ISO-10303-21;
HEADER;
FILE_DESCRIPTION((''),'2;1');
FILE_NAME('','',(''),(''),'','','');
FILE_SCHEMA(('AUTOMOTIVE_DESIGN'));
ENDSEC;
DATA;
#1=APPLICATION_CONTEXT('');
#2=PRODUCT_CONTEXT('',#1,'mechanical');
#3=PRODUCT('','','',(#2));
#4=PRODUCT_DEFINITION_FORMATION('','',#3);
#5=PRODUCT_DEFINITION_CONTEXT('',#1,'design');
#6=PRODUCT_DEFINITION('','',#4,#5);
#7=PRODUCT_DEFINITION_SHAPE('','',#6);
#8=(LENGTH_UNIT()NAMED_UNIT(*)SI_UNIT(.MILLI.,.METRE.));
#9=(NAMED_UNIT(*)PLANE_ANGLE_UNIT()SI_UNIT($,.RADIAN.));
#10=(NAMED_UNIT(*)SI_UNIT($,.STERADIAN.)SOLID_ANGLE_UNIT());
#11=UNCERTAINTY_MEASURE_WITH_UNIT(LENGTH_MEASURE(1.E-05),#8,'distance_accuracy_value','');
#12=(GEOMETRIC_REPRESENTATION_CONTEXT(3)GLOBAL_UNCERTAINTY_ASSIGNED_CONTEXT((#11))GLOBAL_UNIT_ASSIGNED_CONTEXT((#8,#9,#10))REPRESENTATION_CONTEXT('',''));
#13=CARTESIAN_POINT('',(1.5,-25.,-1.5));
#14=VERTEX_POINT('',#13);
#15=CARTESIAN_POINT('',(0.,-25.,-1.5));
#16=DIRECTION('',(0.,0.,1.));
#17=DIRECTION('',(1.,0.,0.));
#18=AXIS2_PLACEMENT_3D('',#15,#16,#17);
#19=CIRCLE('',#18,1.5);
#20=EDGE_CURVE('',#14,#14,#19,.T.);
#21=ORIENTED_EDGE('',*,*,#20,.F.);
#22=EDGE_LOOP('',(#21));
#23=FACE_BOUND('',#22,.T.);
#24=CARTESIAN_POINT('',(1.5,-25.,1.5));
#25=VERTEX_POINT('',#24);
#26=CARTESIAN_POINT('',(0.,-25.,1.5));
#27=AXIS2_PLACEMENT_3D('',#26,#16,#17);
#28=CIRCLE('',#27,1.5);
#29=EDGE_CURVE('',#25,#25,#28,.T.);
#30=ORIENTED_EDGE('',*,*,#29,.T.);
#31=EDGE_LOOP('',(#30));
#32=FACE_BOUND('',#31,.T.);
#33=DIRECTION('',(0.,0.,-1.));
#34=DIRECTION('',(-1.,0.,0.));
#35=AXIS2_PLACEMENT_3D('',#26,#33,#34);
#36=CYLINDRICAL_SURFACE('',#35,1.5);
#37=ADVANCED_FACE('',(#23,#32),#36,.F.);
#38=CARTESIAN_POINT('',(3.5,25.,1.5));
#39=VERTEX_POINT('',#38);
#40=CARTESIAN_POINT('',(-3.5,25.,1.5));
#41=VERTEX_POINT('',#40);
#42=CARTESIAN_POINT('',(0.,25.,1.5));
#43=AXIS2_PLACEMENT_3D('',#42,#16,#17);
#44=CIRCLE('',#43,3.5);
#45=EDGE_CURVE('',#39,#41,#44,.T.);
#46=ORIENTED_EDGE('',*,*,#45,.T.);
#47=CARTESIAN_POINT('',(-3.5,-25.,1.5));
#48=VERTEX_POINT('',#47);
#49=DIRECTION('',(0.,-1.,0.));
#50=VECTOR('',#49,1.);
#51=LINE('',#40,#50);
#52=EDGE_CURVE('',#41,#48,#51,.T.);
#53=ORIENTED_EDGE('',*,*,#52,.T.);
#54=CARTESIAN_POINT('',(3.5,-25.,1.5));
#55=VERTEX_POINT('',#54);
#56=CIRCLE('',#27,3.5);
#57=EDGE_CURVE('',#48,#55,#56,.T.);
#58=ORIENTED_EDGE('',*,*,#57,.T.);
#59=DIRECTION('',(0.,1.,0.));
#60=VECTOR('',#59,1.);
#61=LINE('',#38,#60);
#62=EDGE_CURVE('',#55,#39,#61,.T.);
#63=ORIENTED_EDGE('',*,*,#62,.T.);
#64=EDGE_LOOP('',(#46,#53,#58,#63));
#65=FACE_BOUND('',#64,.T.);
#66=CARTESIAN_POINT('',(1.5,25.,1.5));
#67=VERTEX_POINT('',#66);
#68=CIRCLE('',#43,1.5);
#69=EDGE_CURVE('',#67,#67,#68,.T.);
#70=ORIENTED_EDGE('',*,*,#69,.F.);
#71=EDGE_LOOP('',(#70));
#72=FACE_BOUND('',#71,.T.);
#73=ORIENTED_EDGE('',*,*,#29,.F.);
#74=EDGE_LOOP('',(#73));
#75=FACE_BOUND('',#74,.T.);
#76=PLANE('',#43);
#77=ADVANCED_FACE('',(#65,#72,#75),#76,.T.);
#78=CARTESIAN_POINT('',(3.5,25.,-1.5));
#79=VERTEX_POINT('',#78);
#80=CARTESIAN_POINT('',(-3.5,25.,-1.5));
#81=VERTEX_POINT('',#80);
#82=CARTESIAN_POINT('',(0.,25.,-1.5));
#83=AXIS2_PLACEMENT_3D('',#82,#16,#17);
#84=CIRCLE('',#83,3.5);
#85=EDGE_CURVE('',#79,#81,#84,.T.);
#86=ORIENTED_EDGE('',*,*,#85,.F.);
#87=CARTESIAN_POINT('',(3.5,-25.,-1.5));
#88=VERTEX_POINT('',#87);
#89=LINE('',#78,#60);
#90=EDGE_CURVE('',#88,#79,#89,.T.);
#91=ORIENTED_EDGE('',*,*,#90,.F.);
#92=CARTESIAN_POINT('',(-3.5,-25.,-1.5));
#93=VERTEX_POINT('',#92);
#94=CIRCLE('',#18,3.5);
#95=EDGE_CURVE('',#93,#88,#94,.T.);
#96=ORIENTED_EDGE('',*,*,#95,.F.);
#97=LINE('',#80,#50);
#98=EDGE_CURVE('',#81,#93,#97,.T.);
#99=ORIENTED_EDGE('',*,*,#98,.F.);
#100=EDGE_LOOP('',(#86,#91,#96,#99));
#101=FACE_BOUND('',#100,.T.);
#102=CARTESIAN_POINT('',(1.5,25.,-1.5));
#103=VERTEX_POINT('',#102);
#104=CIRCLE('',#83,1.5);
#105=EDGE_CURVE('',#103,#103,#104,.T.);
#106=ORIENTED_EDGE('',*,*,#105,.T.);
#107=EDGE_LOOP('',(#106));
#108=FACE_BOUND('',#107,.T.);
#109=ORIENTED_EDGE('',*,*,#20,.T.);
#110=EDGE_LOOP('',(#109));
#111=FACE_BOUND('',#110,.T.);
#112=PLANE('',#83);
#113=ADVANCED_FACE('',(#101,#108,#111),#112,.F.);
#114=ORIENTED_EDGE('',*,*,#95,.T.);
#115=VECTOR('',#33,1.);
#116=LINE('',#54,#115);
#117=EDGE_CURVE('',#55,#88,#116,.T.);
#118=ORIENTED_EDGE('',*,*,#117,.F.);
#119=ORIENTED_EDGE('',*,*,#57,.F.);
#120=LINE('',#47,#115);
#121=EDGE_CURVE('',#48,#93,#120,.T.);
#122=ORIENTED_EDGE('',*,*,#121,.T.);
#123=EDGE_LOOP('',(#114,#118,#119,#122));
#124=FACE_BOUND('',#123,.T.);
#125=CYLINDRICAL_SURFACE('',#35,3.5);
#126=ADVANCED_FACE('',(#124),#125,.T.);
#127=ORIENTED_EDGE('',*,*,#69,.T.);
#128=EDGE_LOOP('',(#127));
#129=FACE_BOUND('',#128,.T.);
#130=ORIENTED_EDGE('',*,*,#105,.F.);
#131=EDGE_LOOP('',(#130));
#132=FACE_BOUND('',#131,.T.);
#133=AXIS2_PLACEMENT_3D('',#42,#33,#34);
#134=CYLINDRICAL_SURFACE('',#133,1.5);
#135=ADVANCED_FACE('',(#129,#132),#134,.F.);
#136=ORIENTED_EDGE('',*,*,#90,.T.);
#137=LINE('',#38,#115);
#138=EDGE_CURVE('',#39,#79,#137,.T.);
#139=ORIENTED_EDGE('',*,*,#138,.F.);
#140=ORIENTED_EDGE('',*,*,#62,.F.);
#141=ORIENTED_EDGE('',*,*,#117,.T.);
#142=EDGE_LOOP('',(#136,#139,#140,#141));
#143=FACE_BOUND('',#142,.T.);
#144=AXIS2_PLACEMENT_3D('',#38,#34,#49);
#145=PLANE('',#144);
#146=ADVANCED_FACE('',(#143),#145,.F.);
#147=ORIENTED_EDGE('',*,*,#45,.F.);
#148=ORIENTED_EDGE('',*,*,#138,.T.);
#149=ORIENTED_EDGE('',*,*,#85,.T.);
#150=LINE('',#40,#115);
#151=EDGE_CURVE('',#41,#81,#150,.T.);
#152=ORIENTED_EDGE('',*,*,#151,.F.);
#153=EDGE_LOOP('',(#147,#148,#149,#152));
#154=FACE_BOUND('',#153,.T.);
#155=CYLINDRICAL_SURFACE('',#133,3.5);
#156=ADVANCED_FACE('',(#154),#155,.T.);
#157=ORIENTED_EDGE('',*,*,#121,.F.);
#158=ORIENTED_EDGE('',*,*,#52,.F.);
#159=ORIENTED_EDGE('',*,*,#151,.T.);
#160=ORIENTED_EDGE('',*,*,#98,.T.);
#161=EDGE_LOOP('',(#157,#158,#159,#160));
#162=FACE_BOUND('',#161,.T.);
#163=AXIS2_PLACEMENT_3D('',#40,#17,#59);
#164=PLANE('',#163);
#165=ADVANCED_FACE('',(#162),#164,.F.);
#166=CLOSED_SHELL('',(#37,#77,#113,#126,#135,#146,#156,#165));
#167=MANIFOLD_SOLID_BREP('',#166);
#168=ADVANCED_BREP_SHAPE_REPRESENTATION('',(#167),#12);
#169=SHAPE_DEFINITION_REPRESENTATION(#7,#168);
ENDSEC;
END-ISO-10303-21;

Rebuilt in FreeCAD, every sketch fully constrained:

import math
import FreeCAD as App
import Part
import Sketcher
Q = App.Units.Quantity

doc = App.newDocument("Part")
body = doc.addObject("PartDesign::Body", "Body")

sketch1 = body.newObject("Sketcher::SketchObject", "Sketch")
sketch1.AttachmentSupport = (doc.getObject("XY_Plane"), [""])
sketch1.MapMode = "FlatFace"
sketch1.addGeometry([
    Part.LineSegment(App.Vector(3.5, -25, 0), App.Vector(3.5, 25, 0)),
    Part.ArcOfCircle(Part.Circle(App.Vector(0, 25, 0), App.Vector(0, 0, 1), 3.5), math.radians(0), math.radians(180)),
    Part.LineSegment(App.Vector(-3.5, 25, 0), App.Vector(-3.5, -25, 0)),
    Part.ArcOfCircle(Part.Circle(App.Vector(0, -25, 0), App.Vector(0, 0, 1), 3.5), math.radians(180), math.radians(360)),
    Part.Circle(App.Vector(0, -25, 0), App.Vector(0, 0, 1), 1.5),
    Part.Circle(App.Vector(0, 25, 0), App.Vector(0, 0, 1), 1.5),
], False)
sketch1.addConstraint([
    Sketcher.Constraint("Tangent", 0, 2, 1, 1),
    Sketcher.Constraint("Tangent", 1, 2, 2, 1),
    Sketcher.Constraint("Tangent", 2, 2, 3, 1),
    Sketcher.Constraint("Tangent", 3, 2, 0, 1),
    Sketcher.Constraint("Vertical", 0),
    Sketcher.Constraint("Vertical", 2),
    Sketcher.Constraint("Coincident", 4, 3, 3, 3),
    Sketcher.Constraint("Coincident", 5, 3, 1, 3),
    Sketcher.Constraint("Equal", 4, 5),
    Sketcher.Constraint("Symmetric", 1, 3, 3, 3, -1, 1),
    Sketcher.Constraint("Diameter", 4, Q("3 mm")),
    Sketcher.Constraint("Radius", 1, Q("3.5 mm")),
    Sketcher.Constraint("DistanceY", 0, 1, 0, 2, Q("50 mm")),
])
pad1 = body.newObject("PartDesign::Pad", "Pad")
pad1.Profile = sketch1
pad1.Length = 3
pad1.Midplane = True

doc.recompute()
